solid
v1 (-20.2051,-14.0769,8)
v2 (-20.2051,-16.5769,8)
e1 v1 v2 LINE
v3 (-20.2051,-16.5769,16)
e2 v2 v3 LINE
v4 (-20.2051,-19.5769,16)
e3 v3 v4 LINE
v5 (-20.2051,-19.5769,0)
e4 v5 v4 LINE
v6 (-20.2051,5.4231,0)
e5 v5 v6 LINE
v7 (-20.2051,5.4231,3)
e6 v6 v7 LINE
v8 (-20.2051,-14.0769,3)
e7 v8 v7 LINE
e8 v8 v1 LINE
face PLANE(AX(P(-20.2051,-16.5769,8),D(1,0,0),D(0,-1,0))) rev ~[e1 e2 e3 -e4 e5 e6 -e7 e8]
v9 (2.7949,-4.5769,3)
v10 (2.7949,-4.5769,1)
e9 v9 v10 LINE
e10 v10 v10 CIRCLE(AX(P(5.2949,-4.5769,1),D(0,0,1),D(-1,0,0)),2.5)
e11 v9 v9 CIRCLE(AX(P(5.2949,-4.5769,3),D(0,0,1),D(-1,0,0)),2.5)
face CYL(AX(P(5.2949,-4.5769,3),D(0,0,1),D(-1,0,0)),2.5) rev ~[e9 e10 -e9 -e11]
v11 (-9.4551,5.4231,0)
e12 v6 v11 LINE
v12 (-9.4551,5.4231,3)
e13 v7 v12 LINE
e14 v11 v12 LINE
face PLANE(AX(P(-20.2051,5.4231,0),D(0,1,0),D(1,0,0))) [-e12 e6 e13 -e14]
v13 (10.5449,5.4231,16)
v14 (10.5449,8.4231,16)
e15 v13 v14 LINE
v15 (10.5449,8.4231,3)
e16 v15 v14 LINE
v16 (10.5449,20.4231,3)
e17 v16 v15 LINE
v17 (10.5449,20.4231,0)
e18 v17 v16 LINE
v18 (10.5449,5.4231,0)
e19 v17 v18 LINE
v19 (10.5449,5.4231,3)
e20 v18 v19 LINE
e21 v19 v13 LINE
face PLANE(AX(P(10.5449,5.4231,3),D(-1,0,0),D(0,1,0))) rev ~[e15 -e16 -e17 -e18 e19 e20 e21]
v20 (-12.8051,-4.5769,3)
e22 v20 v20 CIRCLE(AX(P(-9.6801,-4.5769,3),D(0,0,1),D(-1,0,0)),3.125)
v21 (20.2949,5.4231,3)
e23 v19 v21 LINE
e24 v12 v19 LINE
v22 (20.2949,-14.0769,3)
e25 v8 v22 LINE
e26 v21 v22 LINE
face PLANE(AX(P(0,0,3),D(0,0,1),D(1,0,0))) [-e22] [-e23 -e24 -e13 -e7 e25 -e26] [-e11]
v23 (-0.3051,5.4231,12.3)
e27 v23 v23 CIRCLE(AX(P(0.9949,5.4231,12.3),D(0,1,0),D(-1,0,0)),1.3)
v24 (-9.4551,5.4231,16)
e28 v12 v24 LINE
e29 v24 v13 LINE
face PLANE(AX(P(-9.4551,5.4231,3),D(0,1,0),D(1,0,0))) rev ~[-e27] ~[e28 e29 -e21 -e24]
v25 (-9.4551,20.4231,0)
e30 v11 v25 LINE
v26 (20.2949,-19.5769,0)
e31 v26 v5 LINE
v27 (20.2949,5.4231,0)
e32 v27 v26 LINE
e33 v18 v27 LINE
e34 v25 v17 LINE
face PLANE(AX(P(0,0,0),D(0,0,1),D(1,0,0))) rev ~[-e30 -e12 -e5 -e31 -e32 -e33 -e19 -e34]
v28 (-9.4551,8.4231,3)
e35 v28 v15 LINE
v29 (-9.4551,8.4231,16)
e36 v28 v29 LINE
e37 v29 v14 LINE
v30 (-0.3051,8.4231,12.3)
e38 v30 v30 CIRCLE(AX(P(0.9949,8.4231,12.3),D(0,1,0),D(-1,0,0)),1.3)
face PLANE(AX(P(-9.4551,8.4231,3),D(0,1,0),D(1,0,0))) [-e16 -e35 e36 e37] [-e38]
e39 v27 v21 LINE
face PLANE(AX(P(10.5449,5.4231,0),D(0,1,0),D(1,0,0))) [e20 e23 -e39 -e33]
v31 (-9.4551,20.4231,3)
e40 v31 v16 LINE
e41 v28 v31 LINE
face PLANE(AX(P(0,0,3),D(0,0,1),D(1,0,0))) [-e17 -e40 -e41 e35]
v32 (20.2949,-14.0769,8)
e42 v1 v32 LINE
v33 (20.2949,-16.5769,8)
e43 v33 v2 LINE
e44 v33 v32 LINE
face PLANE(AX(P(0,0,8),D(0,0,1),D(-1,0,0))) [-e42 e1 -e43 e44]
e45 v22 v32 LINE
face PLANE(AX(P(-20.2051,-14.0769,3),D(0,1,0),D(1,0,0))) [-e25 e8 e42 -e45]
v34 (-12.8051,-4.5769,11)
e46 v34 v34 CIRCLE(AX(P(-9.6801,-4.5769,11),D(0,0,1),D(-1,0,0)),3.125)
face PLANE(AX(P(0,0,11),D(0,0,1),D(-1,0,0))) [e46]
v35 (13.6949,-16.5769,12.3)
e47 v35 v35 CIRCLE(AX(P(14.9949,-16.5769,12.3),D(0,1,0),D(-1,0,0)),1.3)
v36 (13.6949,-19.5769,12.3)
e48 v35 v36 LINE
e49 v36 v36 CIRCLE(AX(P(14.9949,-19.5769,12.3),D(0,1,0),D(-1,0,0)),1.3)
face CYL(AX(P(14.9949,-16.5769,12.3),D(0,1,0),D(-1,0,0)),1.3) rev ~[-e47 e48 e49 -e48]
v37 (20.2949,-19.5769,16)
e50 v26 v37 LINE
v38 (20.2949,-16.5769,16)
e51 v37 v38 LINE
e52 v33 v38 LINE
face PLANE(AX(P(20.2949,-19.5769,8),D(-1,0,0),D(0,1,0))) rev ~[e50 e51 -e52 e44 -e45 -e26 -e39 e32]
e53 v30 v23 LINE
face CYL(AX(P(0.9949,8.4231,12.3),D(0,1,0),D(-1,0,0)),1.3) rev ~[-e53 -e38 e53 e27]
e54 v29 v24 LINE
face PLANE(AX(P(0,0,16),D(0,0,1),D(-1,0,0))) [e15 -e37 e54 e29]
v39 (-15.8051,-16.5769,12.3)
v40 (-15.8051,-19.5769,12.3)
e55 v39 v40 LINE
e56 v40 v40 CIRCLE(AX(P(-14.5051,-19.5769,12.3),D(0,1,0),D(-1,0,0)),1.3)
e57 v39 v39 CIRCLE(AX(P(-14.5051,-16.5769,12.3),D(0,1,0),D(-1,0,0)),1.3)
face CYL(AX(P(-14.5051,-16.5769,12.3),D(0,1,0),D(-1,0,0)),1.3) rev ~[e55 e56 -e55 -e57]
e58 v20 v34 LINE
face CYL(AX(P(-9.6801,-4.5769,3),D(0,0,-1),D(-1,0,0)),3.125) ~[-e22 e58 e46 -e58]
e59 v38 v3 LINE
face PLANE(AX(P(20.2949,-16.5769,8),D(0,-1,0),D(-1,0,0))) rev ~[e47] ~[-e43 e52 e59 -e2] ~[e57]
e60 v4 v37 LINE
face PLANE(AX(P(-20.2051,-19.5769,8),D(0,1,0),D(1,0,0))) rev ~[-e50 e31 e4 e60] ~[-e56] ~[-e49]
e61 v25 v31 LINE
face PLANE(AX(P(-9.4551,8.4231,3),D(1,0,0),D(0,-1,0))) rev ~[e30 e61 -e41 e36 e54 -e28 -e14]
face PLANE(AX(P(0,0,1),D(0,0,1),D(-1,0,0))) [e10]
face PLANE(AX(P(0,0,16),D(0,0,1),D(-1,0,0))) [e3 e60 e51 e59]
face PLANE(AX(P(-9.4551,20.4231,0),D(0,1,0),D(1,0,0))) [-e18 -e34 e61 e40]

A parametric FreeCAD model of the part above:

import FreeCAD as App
import Part
import Sketcher
Q = App.Units.Quantity


def add_polygon(sketch, points):
    """Adds a closed chain of lines whose ends are joined by coincident constraints."""
    first, n = sketch.GeometryCount, len(points)
    for a, b in zip(points, points[1:] + points[:1]):
        sketch.addGeometry(Part.LineSegment(App.Vector(*a, 0), App.Vector(*b, 0)), False)
    for i in range(n):
        sketch.addConstraint(Sketcher.Constraint("Coincident", first + i, 2, first + (i + 1) % n, 1))

doc = App.newDocument("Part")
body = doc.addObject("PartDesign::Body", "Body")

# Sketch on XY plane
sketch1 = doc.addObject("Sketcher::SketchObject", "Sketch")
body.addObject(sketch1)
sketch1.AttachmentSupport = (doc.XY_Plane, [""])
sketch1.MapMode = "FlatFace"
add_polygon(sketch1, [(11, 20), (-9, 20), (-9, 5), (-20, 5), (-20, -20), (20, -20), (20, 5), (11, 5)])  # lines 0-7
sketch1.addConstraint(Sketcher.Constraint("Horizontal", 0))
sketch1.addConstraint(Sketcher.Constraint("Vertical", 1))
sketch1.addConstraint(Sketcher.Constraint("Horizontal", 2))
sketch1.addConstraint(Sketcher.Constraint("Vertical", 3))
sketch1.addConstraint(Sketcher.Constraint("Horizontal", 4))
sketch1.addConstraint(Sketcher.Constraint("Vertical", 5))
sketch1.addConstraint(Sketcher.Constraint("Horizontal", 6))
sketch1.addConstraint(Sketcher.Constraint("Vertical", 7))
sketch1.addConstraint(Sketcher.Constraint("Horizontal", 2, 2, 5, 2))
sketch1.addConstraint(Sketcher.Constraint("DistanceX", 0, 2, 0, 1, Q("20 mm")))
sketch1.addConstraint(Sketcher.Constraint("DistanceY", 3, 2, 3, 1, Q("25 mm")))
sketch1.addConstraint(Sketcher.Constraint("DistanceX", 4, 1, 4, 2, Q("40.5 mm")))
sketch1.addConstraint(Sketcher.Constraint("DistanceY", 3, 2, 0, 2, Q("40 mm")))
sketch1.addConstraint(Sketcher.Constraint("DistanceX", 2, 2, 2, 1, Q("10.75 mm")))
sketch1.addConstraint(Sketcher.Constraint("DistanceX", 0, 2, -1, 1, Q("9.455 mm")))
sketch1.addConstraint(Sketcher.Constraint("DistanceY", -1, 1, 0, 2, Q("20.423 mm")))
pad1 = doc.addObject("PartDesign::Pad", "Pad")
body.addObject(pad1)
pad1.Profile = sketch1
pad1.Length = 3

# Sketch on XY plane
sketch2 = doc.addObject("Sketcher::SketchObject", "Sketch001")
body.addObject(sketch2)
sketch2.AttachmentSupport = (doc.XY_Plane, [""])
sketch2.MapMode = "FlatFace"
sketch2.AttachmentOffset = App.Placement(App.Vector(0, 0, 3), App.Rotation())
sketch2.addGeometry(Part.Circle(App.Vector(5.3, -4.6, 0), App.Vector(0, 0, 1), 2.5), False)
sketch2.addConstraint(Sketcher.Constraint("Diameter", 0, Q("5 mm")))
sketch2.addConstraint(Sketcher.Constraint("DistanceX", -1, 1, 0, 3, Q("5.295 mm")))
sketch2.addConstraint(Sketcher.Constraint("DistanceY", 0, 3, -1, 1, Q("4.577 mm")))
pocket1 = doc.addObject("PartDesign::Pocket", "Pocket")
body.addObject(pocket1)
pocket1.Profile = sketch2
pocket1.Length = 2

# Sketch on XY plane
sketch3 = doc.addObject("Sketcher::SketchObject", "Sketch002")
body.addObject(sketch3)
sketch3.AttachmentSupport = (doc.XY_Plane, [""])
sketch3.MapMode = "FlatFace"
sketch3.AttachmentOffset = App.Placement(App.Vector(0, 0, 3), App.Rotation())
sketch3.addGeometry(Part.Circle(App.Vector(-9.7, -4.6, 0), App.Vector(0, 0, 1), 3.1), False)
sketch3.addConstraint(Sketcher.Constraint("Diameter", 0, Q("6.25 mm")))
sketch3.addConstraint(Sketcher.Constraint("DistanceX", 0, 3, -1, 1, Q("9.68 mm")))
sketch3.addConstraint(Sketcher.Constraint("DistanceY", 0, 3, -1, 1, Q("4.577 mm")))
pad2 = doc.addObject("PartDesign::Pad", "Pad001")
body.addObject(pad2)
pad2.Profile = sketch3
pad2.Length = 8

# Sketch on XY plane
sketch4 = doc.addObject("Sketcher::SketchObject", "Sketch003")
body.addObject(sketch4)
sketch4.AttachmentSupport = (doc.XY_Plane, [""])
sketch4.MapMode = "FlatFace"
sketch4.AttachmentOffset = App.Placement(App.Vector(0, 0, 3), App.Rotation())
add_polygon(sketch4, [(20, -20), (20, -14), (-20, -14), (-20, -20)])  # lines 0-3
sketch4.addConstraint(Sketcher.Constraint("Vertical", 0))
sketch4.addConstraint(Sketcher.Constraint("Horizontal", 1))
sketch4.addConstraint(Sketcher.Constraint("Vertical", 2))
sketch4.addConstraint(Sketcher.Constraint("Horizontal", 3))
sketch4.addConstraint(Sketcher.Constraint("DistanceY", 0, 1, 0, 2, Q("5.5 mm")))
sketch4.addConstraint(Sketcher.Constraint("DistanceX", 1, 2, 1, 1, Q("40.5 mm")))
sketch4.addConstraint(Sketcher.Constraint("DistanceX", -1, 1, 0, 2, Q("20.295 mm")))
sketch4.addConstraint(Sketcher.Constraint("DistanceY", 0, 2, -1, 1, Q("14.077 mm")))
pad3 = doc.addObject("PartDesign::Pad", "Pad002")
body.addObject(pad3)
pad3.Profile = sketch4
pad3.Length = 5

# Sketch on XY plane
sketch5 = doc.addObject("Sketcher::SketchObject", "Sketch004")
body.addObject(sketch5)
sketch5.AttachmentSupport = (doc.XY_Plane, [""])
sketch5.MapMode = "FlatFace"
sketch5.AttachmentOffset = App.Placement(App.Vector(0, 0, 3), App.Rotation())
add_polygon(sketch5, [(-9.5, 5.4), (10.5, 5.4), (10.5, 8.4), (-9.5, 8.4)])  # lines 0-3
sketch5.addConstraint(Sketcher.Constraint("Horizontal", 0))
sketch5.addConstraint(Sketcher.Constraint("Vertical", 1))
sketch5.addConstraint(Sketcher.Constraint("Horizontal", 2))
sketch5.addConstraint(Sketcher.Constraint("Vertical", 3))
sketch5.addConstraint(Sketcher.Constraint("DistanceY", 1, 1, 1, 2, Q("3 mm")))
sketch5.addConstraint(Sketcher.Constraint("DistanceX", 0, 1, 0, 2, Q("20 mm")))
sketch5.addConstraint(Sketcher.Constraint("DistanceX", -1, 1, 0, 2, Q("10.545 mm")))
sketch5.addConstraint(Sketcher.Constraint("DistanceY", -1, 1, 0, 2, Q("5.423 mm")))
pad4 = doc.addObject("PartDesign::Pad", "Pad003")
body.addObject(pad4)
pad4.Profile = sketch5
pad4.Length = 13

# Sketch on XY plane
sketch6 = doc.addObject("Sketcher::SketchObject", "Sketch005")
body.addObject(sketch6)
sketch6.AttachmentSupport = (doc.XY_Plane, [""])
sketch6.MapMode = "FlatFace"
sketch6.AttachmentOffset = App.Placement(App.Vector(0, 0, 8), App.Rotation())
add_polygon(sketch6, [(-20.2, -16.6), (-20.2, -19.6), (20.3, -19.6), (20.3, -16.6)])  # lines 0-3
sketch6.addConstraint(Sketcher.Constraint("Vertical", 0))
sketch6.addConstraint(Sketcher.Constraint("Horizontal", 1))
sketch6.addConstraint(Sketcher.Constraint("Vertical", 2))
sketch6.addConstraint(Sketcher.Constraint("Horizontal", 3))
sketch6.addConstraint(Sketcher.Constraint("DistanceY", 0, 2, 0, 1, Q("3 mm")))
sketch6.addConstraint(Sketcher.Constraint("DistanceX", 1, 1, 1, 2, Q("40.5 mm")))
sketch6.addConstraint(Sketcher.Constraint("DistanceX", 0, 2, -1, 1, Q("20.205 mm")))
sketch6.addConstraint(Sketcher.Constraint("DistanceY", 0, 2, -1, 1, Q("19.577 mm")))
pad5 = doc.addObject("PartDesign::Pad", "Pad004")
body.addObject(pad5)
pad5.Profile = sketch6
pad5.Length = 8

# Sketch on XZ plane
sketch7 = doc.addObject("Sketcher::SketchObject", "Sketch006")
body.addObject(sketch7)
sketch7.AttachmentSupport = (doc.XZ_Plane, [""])
sketch7.MapMode = "FlatFace"
sketch7.AttachmentOffset = App.Placement(App.Vector(0, 0, 16.5769), App.Rotation())
sketch7.addGeometry(Part.Circle(App.Vector(15, 12.3, 0), App.Vector(0, 0, 1), 1.3), False)
sketch7.addConstraint(Sketcher.Constraint("Diameter", 0, Q("2.6 mm")))
sketch7.addConstraint(Sketcher.Constraint("DistanceY", -1, 1, 0, 3, Q("12.3 mm")))
sketch7.addConstraint(Sketcher.Constraint("DistanceX", -1, 1, 0, 3, Q("14.995 mm")))
pocket2 = doc.addObject("PartDesign::Pocket", "Pocket001")
body.addObject(pocket2)
pocket2.Profile = sketch7
pocket2.Type = "ThroughAll"
pocket2.Reversed = True

# Sketch on XZ plane
sketch8 = doc.addObject("Sketcher::SketchObject", "Sketch007")
body.addObject(sketch8)
sketch8.AttachmentSupport = (doc.XZ_Plane, [""])
sketch8.MapMode = "FlatFace"
sketch8.AttachmentOffset = App.Placement(App.Vector(0, 0, 16.5769), App.Rotation())
sketch8.addGeometry(Part.Circle(App.Vector(-14.5, 12.3, 0), App.Vector(0, 0, 1), 1.3), False)
sketch8.addConstraint(Sketcher.Constraint("Diameter", 0, Q("2.6 mm")))
sketch8.addConstraint(Sketcher.Constraint("DistanceY", -1, 1, 0, 3, Q("12.3 mm")))
sketch8.addConstraint(Sketcher.Constraint("DistanceX", 0, 3, -1, 1, Q("14.505 mm")))
pocket3 = doc.addObject("PartDesign::Pocket", "Pocket002")
body.addObject(pocket3)
pocket3.Profile = sketch8
pocket3.Type = "ThroughAll"
pocket3.Reversed = True

# Sketch on XZ plane
sketch9 = doc.addObject("Sketcher::SketchObject", "Sketch008")
body.addObject(sketch9)
sketch9.AttachmentSupport = (doc.XZ_Plane, [""])
sketch9.MapMode = "FlatFace"
sketch9.AttachmentOffset = App.Placement(App.Vector(0, 0, -8.4231), App.Rotation())
sketch9.addGeometry(Part.Circle(App.Vector(1, 12.3, 0), App.Vector(0, 0, 1), 1.3), False)
sketch9.addConstraint(Sketcher.Constraint("Diameter", 0, Q("2.6 mm")))
sketch9.addConstraint(Sketcher.Constraint("DistanceY", -1, 1, 0, 3, Q("12.3 mm")))
sketch9.addConstraint(Sketcher.Constraint("DistanceX", -1, 1, 0, 3, Q("0.995 mm")))
pocket4 = doc.addObject("PartDesign::Pocket", "Pocket003")
body.addObject(pocket4)
pocket4.Profile = sketch9
pocket4.Length = 4
pocket4.Reversed = True

doc.recompute()
